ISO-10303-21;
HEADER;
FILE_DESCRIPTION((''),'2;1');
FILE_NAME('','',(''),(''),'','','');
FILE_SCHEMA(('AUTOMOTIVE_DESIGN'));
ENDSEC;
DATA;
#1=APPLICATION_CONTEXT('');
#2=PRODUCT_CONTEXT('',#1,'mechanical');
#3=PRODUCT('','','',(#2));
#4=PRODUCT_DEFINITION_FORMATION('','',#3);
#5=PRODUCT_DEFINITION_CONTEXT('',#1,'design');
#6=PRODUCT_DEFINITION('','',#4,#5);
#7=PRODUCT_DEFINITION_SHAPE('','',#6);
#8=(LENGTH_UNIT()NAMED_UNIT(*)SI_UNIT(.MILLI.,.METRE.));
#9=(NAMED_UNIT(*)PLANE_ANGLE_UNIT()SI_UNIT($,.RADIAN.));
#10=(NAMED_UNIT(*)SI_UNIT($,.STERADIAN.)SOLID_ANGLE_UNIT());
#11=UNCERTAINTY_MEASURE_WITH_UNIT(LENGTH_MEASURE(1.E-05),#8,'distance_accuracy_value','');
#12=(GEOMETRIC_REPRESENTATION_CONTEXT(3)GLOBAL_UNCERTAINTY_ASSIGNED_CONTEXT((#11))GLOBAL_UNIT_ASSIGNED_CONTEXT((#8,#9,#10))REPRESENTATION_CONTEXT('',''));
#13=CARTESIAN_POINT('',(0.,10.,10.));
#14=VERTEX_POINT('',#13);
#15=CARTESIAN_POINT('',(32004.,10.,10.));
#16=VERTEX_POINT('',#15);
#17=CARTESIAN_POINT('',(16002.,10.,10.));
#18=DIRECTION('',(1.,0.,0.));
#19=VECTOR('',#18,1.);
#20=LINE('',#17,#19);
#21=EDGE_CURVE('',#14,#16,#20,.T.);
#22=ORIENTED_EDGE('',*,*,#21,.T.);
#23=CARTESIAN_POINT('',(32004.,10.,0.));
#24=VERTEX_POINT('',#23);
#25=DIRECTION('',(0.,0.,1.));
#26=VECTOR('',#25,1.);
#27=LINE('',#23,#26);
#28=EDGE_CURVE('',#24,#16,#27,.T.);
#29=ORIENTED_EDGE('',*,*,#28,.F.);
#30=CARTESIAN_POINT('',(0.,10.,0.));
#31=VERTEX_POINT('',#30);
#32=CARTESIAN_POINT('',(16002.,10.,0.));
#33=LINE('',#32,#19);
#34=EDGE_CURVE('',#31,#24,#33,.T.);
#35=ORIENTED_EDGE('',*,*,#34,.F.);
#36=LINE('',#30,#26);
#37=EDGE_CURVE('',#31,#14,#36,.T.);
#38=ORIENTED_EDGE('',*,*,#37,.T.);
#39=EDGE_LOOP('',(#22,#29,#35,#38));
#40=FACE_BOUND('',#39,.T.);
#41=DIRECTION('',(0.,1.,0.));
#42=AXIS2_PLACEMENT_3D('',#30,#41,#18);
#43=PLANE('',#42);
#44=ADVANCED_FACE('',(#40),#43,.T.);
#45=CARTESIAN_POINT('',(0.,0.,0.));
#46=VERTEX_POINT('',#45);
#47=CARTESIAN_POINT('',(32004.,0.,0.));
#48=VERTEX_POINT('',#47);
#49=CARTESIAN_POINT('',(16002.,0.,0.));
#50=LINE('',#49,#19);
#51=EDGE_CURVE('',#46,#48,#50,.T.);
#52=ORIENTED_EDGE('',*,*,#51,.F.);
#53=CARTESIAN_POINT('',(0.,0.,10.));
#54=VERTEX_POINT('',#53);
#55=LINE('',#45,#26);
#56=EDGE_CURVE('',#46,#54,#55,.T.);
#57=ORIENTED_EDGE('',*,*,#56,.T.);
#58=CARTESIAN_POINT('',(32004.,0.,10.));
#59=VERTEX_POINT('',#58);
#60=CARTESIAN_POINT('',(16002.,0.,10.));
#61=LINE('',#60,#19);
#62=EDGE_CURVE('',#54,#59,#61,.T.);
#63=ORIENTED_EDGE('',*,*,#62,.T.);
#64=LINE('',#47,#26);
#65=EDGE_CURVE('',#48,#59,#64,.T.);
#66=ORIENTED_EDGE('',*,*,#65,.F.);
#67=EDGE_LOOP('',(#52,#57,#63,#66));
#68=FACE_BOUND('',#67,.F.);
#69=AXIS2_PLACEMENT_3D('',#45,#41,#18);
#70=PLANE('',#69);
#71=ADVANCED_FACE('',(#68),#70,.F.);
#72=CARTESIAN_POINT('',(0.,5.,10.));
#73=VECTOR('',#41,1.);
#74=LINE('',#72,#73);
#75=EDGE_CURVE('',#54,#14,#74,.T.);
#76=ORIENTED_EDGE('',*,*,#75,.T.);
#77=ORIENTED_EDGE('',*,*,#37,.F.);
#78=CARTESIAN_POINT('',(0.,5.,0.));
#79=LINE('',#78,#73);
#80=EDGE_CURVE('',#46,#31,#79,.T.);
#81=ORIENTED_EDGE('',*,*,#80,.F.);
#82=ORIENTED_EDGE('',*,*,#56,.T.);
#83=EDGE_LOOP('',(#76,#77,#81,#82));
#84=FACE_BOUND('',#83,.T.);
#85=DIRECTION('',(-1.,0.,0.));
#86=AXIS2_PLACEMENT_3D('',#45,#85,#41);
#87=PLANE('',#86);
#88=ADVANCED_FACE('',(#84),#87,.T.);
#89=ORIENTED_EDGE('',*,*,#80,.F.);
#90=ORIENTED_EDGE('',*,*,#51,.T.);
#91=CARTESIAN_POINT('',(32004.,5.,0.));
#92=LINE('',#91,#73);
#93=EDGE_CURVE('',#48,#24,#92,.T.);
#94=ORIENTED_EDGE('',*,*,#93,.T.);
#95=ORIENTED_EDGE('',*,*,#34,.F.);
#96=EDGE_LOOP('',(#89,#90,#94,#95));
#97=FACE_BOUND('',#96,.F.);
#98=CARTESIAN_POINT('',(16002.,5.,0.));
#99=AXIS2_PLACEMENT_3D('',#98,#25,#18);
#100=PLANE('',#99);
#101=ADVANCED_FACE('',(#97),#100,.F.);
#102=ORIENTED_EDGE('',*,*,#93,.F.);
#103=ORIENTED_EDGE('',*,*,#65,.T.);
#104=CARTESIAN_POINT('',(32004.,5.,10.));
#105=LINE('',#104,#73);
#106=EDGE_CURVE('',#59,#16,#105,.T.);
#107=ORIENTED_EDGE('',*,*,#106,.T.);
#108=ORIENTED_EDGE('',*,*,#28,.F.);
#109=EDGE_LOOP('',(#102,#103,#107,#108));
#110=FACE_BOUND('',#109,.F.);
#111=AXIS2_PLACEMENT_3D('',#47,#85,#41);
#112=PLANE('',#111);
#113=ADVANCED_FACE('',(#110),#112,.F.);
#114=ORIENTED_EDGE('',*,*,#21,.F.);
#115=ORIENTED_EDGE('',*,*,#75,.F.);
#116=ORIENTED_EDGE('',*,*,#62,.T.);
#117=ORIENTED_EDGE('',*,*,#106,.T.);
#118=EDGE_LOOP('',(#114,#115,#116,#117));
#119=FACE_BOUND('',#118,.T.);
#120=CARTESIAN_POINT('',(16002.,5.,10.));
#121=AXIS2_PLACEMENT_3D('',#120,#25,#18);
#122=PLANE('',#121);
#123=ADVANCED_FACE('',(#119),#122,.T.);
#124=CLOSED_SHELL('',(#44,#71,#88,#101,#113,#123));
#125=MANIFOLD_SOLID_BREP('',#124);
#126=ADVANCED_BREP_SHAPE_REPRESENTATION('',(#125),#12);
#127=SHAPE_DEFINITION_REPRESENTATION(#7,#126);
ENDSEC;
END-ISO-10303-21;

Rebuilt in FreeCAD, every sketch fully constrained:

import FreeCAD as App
import Part
import Sketcher
from FreeCAD import Vector
Q = App.Units.Quantity


def add_polygon(sketch, points):
    """Adds a closed chain of lines whose ends are joined by coincident constraints."""
    first, n = sketch.GeometryCount, len(points)
    for a, b in zip(points, points[1:] + points[:1]):
        sketch.addGeometry(Part.LineSegment(App.Vector(*a, 0), App.Vector(*b, 0)), False)
    for i in range(n):
        sketch.addConstraint(Sketcher.Constraint("Coincident", first + i, 2, first + (i + 1) % n, 1))

doc = App.newDocument("Part")
body = doc.addObject("PartDesign::Body", "Body")

# Sketch on XY plane
sketch1 = doc.addObject("Sketcher::SketchObject", "Sketch")
body.addObject(sketch1)
sketch1.AttachmentSupport = (doc.XY_Plane, [""])
sketch1.MapMode = "FlatFace"
add_polygon(sketch1, [(0, 10), (0, 0), (32004, 0), (32004, 10)])  # lines 0-3
sketch1.addConstraint(Sketcher.Constraint("Vertical", 0))
sketch1.addConstraint(Sketcher.Constraint("Horizontal", 1))
sketch1.addConstraint(Sketcher.Constraint("Vertical", 2))
sketch1.addConstraint(Sketcher.Constraint("Horizontal", 3))
sketch1.addConstraint(Sketcher.Constraint("Coincident", 0, 2, -1, 1))
sketch1.addConstraint(Sketcher.Constraint("DistanceX", 1, 1, 1, 2, Q("32004 mm")))
sketch1.addConstraint(Sketcher.Constraint("DistanceY", 0, 2, 0, 1, Q("10 mm")))
pad1 = doc.addObject("PartDesign::Pad", "Pad")
body.addObject(pad1)
pad1.Profile = sketch1
pad1.Length = 10

doc.recompute()
